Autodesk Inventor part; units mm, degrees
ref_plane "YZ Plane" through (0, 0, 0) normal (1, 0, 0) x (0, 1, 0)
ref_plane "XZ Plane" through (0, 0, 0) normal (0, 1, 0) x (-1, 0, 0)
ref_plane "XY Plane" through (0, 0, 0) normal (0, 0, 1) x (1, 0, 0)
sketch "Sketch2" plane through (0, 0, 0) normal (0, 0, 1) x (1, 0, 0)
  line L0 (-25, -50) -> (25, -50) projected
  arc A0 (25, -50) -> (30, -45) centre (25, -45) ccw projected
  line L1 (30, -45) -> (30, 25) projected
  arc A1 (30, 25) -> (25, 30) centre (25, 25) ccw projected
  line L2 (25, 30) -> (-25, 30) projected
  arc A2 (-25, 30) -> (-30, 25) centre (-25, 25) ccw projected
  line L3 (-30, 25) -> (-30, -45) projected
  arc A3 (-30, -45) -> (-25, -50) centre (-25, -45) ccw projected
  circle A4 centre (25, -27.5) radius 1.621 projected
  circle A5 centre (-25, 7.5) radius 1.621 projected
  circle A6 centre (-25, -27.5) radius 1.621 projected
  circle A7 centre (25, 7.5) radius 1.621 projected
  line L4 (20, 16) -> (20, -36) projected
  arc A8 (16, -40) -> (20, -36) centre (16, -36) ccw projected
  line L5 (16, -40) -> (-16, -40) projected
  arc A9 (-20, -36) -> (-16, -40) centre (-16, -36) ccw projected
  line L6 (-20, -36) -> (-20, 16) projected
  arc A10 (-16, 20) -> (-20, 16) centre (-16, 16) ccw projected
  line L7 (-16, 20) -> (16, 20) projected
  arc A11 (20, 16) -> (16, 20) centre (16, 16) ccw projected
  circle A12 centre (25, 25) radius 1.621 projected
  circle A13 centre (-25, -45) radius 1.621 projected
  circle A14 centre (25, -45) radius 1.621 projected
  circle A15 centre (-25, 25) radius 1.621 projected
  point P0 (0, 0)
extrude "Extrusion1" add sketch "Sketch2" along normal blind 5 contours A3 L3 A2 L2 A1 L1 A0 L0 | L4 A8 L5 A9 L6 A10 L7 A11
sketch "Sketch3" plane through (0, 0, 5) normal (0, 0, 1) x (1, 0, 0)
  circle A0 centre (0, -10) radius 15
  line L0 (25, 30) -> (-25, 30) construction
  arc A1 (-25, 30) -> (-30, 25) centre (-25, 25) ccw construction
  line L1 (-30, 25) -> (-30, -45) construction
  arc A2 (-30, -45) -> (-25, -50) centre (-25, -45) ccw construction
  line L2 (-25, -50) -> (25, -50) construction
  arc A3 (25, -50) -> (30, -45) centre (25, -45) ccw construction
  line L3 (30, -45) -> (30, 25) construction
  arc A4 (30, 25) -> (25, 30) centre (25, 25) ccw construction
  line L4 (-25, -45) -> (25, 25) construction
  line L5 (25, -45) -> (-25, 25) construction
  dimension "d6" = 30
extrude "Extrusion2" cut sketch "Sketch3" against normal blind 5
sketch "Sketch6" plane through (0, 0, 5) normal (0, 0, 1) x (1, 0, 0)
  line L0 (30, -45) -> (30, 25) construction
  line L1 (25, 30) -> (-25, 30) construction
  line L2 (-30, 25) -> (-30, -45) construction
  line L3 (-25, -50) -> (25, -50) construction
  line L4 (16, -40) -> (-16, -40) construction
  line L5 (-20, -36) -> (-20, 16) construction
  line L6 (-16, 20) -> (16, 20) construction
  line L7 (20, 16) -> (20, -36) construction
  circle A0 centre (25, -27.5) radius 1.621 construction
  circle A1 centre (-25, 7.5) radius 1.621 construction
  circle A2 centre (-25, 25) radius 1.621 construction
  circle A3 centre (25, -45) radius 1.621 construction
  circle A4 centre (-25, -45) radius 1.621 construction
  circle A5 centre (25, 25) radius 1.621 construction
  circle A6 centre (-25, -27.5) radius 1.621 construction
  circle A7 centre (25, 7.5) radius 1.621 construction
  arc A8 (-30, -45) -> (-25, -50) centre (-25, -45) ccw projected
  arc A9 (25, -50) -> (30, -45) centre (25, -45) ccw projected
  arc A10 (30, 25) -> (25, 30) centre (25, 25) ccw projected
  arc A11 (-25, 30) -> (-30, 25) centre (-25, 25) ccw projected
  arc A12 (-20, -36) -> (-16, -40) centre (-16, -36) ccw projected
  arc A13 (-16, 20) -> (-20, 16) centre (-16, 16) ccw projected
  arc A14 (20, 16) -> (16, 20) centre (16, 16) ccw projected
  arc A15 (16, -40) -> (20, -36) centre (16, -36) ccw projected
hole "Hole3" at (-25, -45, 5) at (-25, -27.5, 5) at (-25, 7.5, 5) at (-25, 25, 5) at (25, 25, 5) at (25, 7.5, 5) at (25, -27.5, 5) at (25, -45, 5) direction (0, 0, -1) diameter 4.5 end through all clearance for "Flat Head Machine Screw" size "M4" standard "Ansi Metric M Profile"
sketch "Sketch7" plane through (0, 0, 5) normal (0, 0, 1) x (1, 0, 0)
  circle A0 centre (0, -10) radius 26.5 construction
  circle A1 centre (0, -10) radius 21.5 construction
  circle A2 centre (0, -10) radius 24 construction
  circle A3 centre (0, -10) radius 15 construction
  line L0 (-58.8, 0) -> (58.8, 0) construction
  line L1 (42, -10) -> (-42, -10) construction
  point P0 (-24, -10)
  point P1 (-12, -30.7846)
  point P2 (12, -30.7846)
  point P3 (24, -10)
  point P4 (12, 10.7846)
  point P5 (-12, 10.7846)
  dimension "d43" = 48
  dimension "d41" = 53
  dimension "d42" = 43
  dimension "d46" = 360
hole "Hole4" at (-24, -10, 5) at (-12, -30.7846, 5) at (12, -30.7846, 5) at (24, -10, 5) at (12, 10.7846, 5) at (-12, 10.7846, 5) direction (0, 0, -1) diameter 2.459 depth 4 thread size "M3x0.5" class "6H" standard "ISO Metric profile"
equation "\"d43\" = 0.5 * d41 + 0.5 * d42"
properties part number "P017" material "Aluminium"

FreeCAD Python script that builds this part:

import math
import FreeCAD as App
import Part
import Sketcher
from FreeCAD import Vector
Q = App.Units.Quantity

doc = App.newDocument("Part")
body = doc.addObject("PartDesign::Body", "Body")

# Sketch on XY plane
sketch1 = doc.addObject("Sketcher::SketchObject", "Sketch")
body.addObject(sketch1)
sketch1.AttachmentSupport = (doc.XY_Plane, [""])
sketch1.MapMode = "FlatFace"
sketch1.addGeometry([
    Part.ArcOfCircle(Part.Circle(Vector(-25, -45, 0), Vector(0, 0, 1), 5), math.radians(180), math.radians(270)),  # 0
    Part.LineSegment(Vector(-25, -50, 0), Vector(25, -50, 0)),  # 1
    Part.ArcOfCircle(Part.Circle(Vector(25, -45, 0), Vector(0, 0, 1), 5), math.radians(-90), math.radians(0)),  # 2
    Part.LineSegment(Vector(30, -45, 0), Vector(30, 25, 0)),  # 3
    Part.ArcOfCircle(Part.Circle(Vector(25, 25, 0), Vector(0, 0, 1), 5), math.radians(0), math.radians(90)),  # 4
    Part.LineSegment(Vector(25, 30, 0), Vector(-25, 30, 0)),  # 5
    Part.ArcOfCircle(Part.Circle(Vector(-25, 25, 0), Vector(0, 0, 1), 5), math.radians(90), math.radians(180)),  # 6
    Part.LineSegment(Vector(-30, 25, 0), Vector(-30, -45, 0)),  # 7
    Part.Circle(Vector(-25, -45, 0), Vector(0, 0, 1), 1.621),  # 8
    Part.Circle(Vector(-25, -27.5, 0), Vector(0, 0, 1), 1.621),  # 9
    Part.Circle(Vector(25, -45, 0), Vector(0, 0, 1), 1.621),  # 10
    Part.Circle(Vector(25, -27.5, 0), Vector(0, 0, 1), 1.621),  # 11
    Part.Circle(Vector(-25, 7.5, 0), Vector(0, 0, 1), 1.621),  # 12
    Part.Circle(Vector(-25, 25, 0), Vector(0, 0, 1), 1.621),  # 13
    Part.Circle(Vector(25, 7.5, 0), Vector(0, 0, 1), 1.621),  # 14
    Part.Circle(Vector(25, 25, 0), Vector(0, 0, 1), 1.621),  # 15
], False)
sketch1.addConstraint([
    Sketcher.Constraint("Tangent", 0, 2, 1, 1),
    Sketcher.Constraint("Tangent", 1, 2, 2, 1),
    Sketcher.Constraint("Tangent", 2, 2, 3, 1),
    Sketcher.Constraint("Tangent", 3, 2, 4, 1),
    Sketcher.Constraint("Tangent", 4, 2, 5, 1),
    Sketcher.Constraint("Tangent", 5, 2, 6, 1),
    Sketcher.Constraint("Tangent", 6, 2, 7, 1),
    Sketcher.Constraint("Tangent", 7, 2, 0, 1),
    Sketcher.Constraint("Horizontal", 1),
    Sketcher.Constraint("Vertical", 3),
    Sketcher.Constraint("Horizontal", 5),
    Sketcher.Constraint("Vertical", 7),
    Sketcher.Constraint("Coincident", 8, 3, 0, 3),
    Sketcher.Constraint("Coincident", 10, 3, 2, 3),
    Sketcher.Constraint("Coincident", 13, 3, 6, 3),
    Sketcher.Constraint("Coincident", 15, 3, 4, 3),
    Sketcher.Constraint("Equal", 0, 2),
    Sketcher.Constraint("Equal", 2, 4),
    Sketcher.Constraint("Equal", 4, 6),
    Sketcher.Constraint("Equal", 8, 9),
    Sketcher.Constraint("Equal", 9, 10),
    Sketcher.Constraint("Equal", 10, 11),
    Sketcher.Constraint("Equal", 11, 12),
    Sketcher.Constraint("Equal", 12, 13),
    Sketcher.Constraint("Equal", 13, 14),
    Sketcher.Constraint("Equal", 14, 15),
    Sketcher.Constraint("Symmetric", 9, 3, 11, 3, -2),
    Sketcher.Constraint("Symmetric", 12, 3, 14, 3, -2),
    Sketcher.Constraint("Vertical", 8, 3, 9, 3),
    Sketcher.Constraint("Vertical", 10, 3, 11, 3),
    Sketcher.Constraint("Vertical", 9, 3, 12, 3),
    Sketcher.Constraint("Radius", 0, Q("5 mm")),
    Sketcher.Constraint("DistanceX", 1, 1, 1, 2, Q("50 mm")),
    Sketcher.Constraint("DistanceY", 3, 1, 3, 2, Q("70 mm")),
    Sketcher.Constraint("Diameter", 8, Q("3.242 mm")),
    Sketcher.Constraint("DistanceY", 0, 3, -1, 1, Q("45 mm")),
    Sketcher.Constraint("DistanceY", 9, 3, 12, 3, Q("35 mm")),
    Sketcher.Constraint("DistanceY", 9, 3, -1, 1, Q("27.5 mm")),
])
pad1 = doc.addObject("PartDesign::Pad", "Pad")
body.addObject(pad1)
pad1.Profile = sketch1
pad1.Length = 5

# Sketch on XY plane
sketch2 = doc.addObject("Sketcher::SketchObject", "Sketch001")
body.addObject(sketch2)
sketch2.AttachmentSupport = (doc.XY_Plane, [""])
sketch2.MapMode = "FlatFace"
sketch2.AttachmentOffset = App.Placement(Vector(0, 0, 5), App.Rotation())
sketch2.addGeometry(Part.Circle(Vector(0, -10, 0), Vector(0, 0, 1), 15), False)
sketch2.addConstraint([
    Sketcher.Constraint("PointOnObject", 0, 3, -2),
    Sketcher.Constraint("Diameter", 0, Q("30 mm")),
    Sketcher.Constraint("DistanceY", 0, 3, -1, 1, Q("10 mm")),
])
pocket1 = doc.addObject("PartDesign::Pocket", "Pocket")
body.addObject(pocket1)
pocket1.Profile = sketch2
pocket1.Length = 5

# Sketch on XY plane
sketch3 = doc.addObject("Sketcher::SketchObject", "Sketch002")
body.addObject(sketch3)
sketch3.AttachmentSupport = (doc.XY_Plane, [""])
sketch3.MapMode = "FlatFace"
sketch3.AttachmentOffset = App.Placement(Vector(0, 0, 5), App.Rotation())
sketch3.addGeometry([
    Part.Circle(Vector(-25, -45, 0), Vector(0, 0, 1), 2.25),  # 0
    Part.Circle(Vector(-25, -27.5, 0), Vector(0, 0, 1), 2.25),  # 1
    Part.Circle(Vector(-25, 7.5, 0), Vector(0, 0, 1), 2.25),  # 2
    Part.Circle(Vector(-25, 25, 0), Vector(0, 0, 1), 2.25),  # 3
    Part.Circle(Vector(25, 25, 0), Vector(0, 0, 1), 2.25),  # 4
    Part.Circle(Vector(25, 7.5, 0), Vector(0, 0, 1), 2.25),  # 5
    Part.Circle(Vector(25, -27.5, 0), Vector(0, 0, 1), 2.25),  # 6
    Part.Circle(Vector(25, -45, 0), Vector(0, 0, 1), 2.25),  # 7
], False)
sketch3.addConstraint([
    Sketcher.Constraint("Equal", 0, 1),
    Sketcher.Constraint("Equal", 1, 2),
    Sketcher.Constraint("Equal", 2, 3),
    Sketcher.Constraint("Equal", 3, 4),
    Sketcher.Constraint("Equal", 4, 5),
    Sketcher.Constraint("Equal", 5, 6),
    Sketcher.Constraint("Equal", 6, 7),
    Sketcher.Constraint("Symmetric", 3, 3, 4, 3, -2),
    Sketcher.Constraint("Symmetric", 2, 3, 5, 3, -2),
    Sketcher.Constraint("Symmetric", 1, 3, 6, 3, -2),
    Sketcher.Constraint("Symmetric", 0, 3, 7, 3, -2),
    Sketcher.Constraint("Vertical", 0, 3, 1, 3),
    Sketcher.Constraint("Vertical", 1, 3, 2, 3),
    Sketcher.Constraint("Vertical", 2, 3, 3, 3),
    Sketcher.Constraint("Diameter", 0, Q("4.5 mm")),
    Sketcher.Constraint("DistanceX", 0, 3, -1, 1, Q("25 mm")),
    Sketcher.Constraint("DistanceY", 0, 3, -1, 1, Q("45 mm")),
    Sketcher.Constraint("DistanceY", -1, 1, 3, 3, Q("25 mm")),
    Sketcher.Constraint("DistanceY", 1, 3, 2, 3, Q("35 mm")),
    Sketcher.Constraint("DistanceY", 1, 3, -1, 1, Q("27.5 mm")),
])
doc.recompute()
hole = doc.addObject("PartDesign::Hole", "Hole")
body.addObject(hole)
hole.Profile = sketch3
hole.ThreadType = "None"
hole.Diameter = 4.5
hole.DepthType = "ThroughAll"

# Sketch on XY plane
sketch4 = doc.addObject("Sketcher::SketchObject", "Sketch003")
body.addObject(sketch4)
sketch4.AttachmentSupport = (doc.XY_Plane, [""])
sketch4.MapMode = "FlatFace"
sketch4.AttachmentOffset = App.Placement(Vector(0, 0, 5), App.Rotation())
sketch4.addGeometry([
    Part.Circle(Vector(-24, -10, 0), Vector(0, 0, 1), 1.2295),  # 0
    Part.Circle(Vector(-12, -30.7846, 0), Vector(0, 0, 1), 1.2295),  # 1
    Part.Circle(Vector(12, -30.7846, 0), Vector(0, 0, 1), 1.2295),  # 2
    Part.Circle(Vector(24, -10, 0), Vector(0, 0, 1), 1.2295),  # 3
    Part.Circle(Vector(12, 10.7846, 0), Vector(0, 0, 1), 1.2295),  # 4
    Part.Circle(Vector(-12, 10.7846, 0), Vector(0, 0, 1), 1.2295),  # 5
], False)
sketch4.addConstraint([
    Sketcher.Constraint("Equal", 0, 1),
    Sketcher.Constraint("Equal", 1, 2),
    Sketcher.Constraint("Equal", 2, 3),
    Sketcher.Constraint("Equal", 3, 4),
    Sketcher.Constraint("Equal", 4, 5),
    Sketcher.Constraint("Symmetric", 1, 3, 2, 3, -2),
    Sketcher.Constraint("Symmetric", 0, 3, 3, 3, -2),
    Sketcher.Constraint("Symmetric", 4, 3, 5, 3, -2),
    Sketcher.Constraint("Vertical", 2, 3, 4, 3),
    Sketcher.Constraint("Diameter", 0, Q("2.459 mm")),
    Sketcher.Constraint("DistanceX", 0, 3, -1, 1, Q("24 mm")),
    Sketcher.Constraint("DistanceY", 0, 3, -1, 1, Q("10 mm")),
    Sketcher.Constraint("DistanceX", 1, 3, -1, 1, Q("12 mm")),
    Sketcher.Constraint("DistanceY", 1, 3, -1, 1, Q("30.7846 mm")),
    Sketcher.Constraint("DistanceY", -1, 1, 4, 3, Q("10.7846 mm")),
])
doc.recompute()
hole2 = doc.addObject("PartDesign::Hole", "Hole001")
body.addObject(hole2)
hole2.Profile = sketch4
hole2.ThreadType = "None"
hole2.Diameter = 2.459
hole2.DepthType = "Dimension"
hole2.Depth = 4
hole2.DrillPoint = "Flat"

doc.recompute()
